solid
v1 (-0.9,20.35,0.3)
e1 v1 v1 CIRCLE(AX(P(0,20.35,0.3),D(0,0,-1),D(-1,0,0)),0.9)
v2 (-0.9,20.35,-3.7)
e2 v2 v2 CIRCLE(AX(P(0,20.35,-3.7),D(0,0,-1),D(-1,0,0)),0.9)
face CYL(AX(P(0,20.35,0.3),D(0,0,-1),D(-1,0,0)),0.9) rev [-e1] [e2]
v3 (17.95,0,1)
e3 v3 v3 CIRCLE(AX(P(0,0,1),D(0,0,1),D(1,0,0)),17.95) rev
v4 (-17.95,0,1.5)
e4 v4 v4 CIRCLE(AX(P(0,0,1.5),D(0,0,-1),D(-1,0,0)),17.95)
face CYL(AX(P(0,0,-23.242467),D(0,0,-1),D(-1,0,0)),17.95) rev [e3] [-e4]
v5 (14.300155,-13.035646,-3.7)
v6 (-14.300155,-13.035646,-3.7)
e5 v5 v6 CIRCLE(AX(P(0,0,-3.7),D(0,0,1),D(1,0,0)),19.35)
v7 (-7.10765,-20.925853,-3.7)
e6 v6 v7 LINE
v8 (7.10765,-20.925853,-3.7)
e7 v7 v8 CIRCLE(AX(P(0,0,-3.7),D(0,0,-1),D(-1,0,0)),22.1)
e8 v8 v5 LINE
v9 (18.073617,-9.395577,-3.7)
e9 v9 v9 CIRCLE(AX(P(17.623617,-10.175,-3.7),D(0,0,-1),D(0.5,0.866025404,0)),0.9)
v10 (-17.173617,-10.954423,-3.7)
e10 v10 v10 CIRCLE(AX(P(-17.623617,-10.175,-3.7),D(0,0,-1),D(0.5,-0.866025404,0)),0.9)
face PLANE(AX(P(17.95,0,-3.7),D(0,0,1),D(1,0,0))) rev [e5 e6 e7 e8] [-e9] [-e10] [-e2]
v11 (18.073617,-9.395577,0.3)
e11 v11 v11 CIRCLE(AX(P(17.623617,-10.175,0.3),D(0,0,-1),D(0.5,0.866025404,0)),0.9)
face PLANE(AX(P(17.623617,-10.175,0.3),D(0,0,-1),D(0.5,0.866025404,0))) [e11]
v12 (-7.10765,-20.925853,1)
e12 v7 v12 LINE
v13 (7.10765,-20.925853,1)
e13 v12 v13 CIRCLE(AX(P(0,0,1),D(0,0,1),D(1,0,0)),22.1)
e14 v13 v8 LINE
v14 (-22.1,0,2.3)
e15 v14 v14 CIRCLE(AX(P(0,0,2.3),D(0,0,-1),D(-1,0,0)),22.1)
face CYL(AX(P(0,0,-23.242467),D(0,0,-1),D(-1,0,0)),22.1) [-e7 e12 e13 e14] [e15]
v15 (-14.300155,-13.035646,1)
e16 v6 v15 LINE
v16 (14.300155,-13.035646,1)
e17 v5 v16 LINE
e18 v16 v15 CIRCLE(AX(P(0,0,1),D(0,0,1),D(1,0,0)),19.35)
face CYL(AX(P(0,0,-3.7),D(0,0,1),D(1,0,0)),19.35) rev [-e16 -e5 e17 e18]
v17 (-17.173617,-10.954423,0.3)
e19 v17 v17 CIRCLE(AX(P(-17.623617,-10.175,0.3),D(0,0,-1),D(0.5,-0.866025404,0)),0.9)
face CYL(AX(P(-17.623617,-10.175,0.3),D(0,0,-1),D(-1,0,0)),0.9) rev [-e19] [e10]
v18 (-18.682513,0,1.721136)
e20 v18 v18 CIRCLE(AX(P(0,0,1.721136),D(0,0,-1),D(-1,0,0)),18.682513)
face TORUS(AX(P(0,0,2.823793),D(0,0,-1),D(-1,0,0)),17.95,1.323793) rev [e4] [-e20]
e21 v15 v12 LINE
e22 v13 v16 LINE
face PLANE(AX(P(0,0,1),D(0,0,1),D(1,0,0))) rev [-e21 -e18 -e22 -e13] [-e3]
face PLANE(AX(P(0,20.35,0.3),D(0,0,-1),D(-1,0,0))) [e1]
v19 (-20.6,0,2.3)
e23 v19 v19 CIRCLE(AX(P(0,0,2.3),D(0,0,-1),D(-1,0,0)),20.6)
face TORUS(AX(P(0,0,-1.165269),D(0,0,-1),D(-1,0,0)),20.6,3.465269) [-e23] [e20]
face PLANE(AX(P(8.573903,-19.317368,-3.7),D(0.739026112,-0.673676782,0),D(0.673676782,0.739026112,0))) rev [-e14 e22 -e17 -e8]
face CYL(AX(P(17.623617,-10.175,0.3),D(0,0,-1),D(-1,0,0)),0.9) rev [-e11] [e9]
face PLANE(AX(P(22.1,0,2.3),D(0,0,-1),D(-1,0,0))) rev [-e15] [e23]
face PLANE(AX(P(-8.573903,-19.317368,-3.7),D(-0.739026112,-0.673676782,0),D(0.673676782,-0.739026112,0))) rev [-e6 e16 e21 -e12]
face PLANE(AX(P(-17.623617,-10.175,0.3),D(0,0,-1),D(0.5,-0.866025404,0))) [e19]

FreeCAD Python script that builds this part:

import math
import FreeCAD as App
import Part
import Sketcher
from FreeCAD import Vector

doc = App.newDocument("Part")
body = doc.addObject("PartDesign::Body", "Body")

# Sketch on XZ plane
sketch1 = body.newObject("Sketcher::SketchObject", "Sketch")
sketch1.AttachmentSupport = (doc.getObject("XZ_Plane"), [""])
sketch1.MapMode = "FlatFace"
sketch1.addGeometry([
    Part.LineSegment(Vector(17.95, -3.7, 0), Vector(17.95, 1.5, 0)),  # 0
    Part.ArcOfCircle(Part.Circle(Vector(17.95, 2.823793, 0), Vector(0, 0, 1), 1.323793), math.radians(-90), math.radians(-56.403256)),  # 1
    Part.ArcOfCircle(Part.Circle(Vector(20.6, -1.165269, 0), Vector(0, 0, 1), 3.465269), math.radians(90), math.radians(123.596744)),  # 2
    Part.LineSegment(Vector(20.6, 2.3, 0), Vector(22.1, 2.3, 0)),  # 3
    Part.LineSegment(Vector(22.1, 2.3, 0), Vector(22.1, -3.7, 0)),  # 4
    Part.LineSegment(Vector(22.1, -3.7, 0), Vector(17.95, -3.7, 0)),  # 5
], False)
sketch1.addConstraint([
    Sketcher.Constraint("Coincident", 0, 2, 1, 1),
    Sketcher.Constraint("Tangent", 1, 2, 2, 2),
    Sketcher.Constraint("Tangent", 2, 1, 3, 1),
    Sketcher.Constraint("Coincident", 3, 2, 4, 1),
    Sketcher.Constraint("Coincident", 4, 2, 5, 1),
    Sketcher.Constraint("Coincident", 5, 2, 0, 1),
    Sketcher.Constraint("Vertical", 0),
    Sketcher.Constraint("Horizontal", 3),
    Sketcher.Constraint("Vertical", 4),
    Sketcher.Constraint("Horizontal", 5),
    Sketcher.Constraint("Vertical", 1, 3, 0, 2),
    Sketcher.Constraint("DistanceY", 4, 2, 4, 1, 6.0),
    Sketcher.Constraint("DistanceX", 3, 1, 3, 2, 1.5),
    Sketcher.Constraint("DistanceY", 0, 1, 0, 2, 5.2),
    Sketcher.Constraint("DistanceX", 5, 2, 5, 1, 4.15),
    Sketcher.Constraint("DistanceX", -1, 1, 2, 3, 20.6),
    Sketcher.Constraint("DistanceY", -1, 1, 0, 2, 1.5),
    Sketcher.Constraint("Radius", 2, 3.465269),
])
revolution = body.newObject("PartDesign::Revolution", "Revolution")
revolution.Profile = sketch1
revolution.ReferenceAxis = (sketch1, ["V_Axis"])
revolution.Angle = 360

# Sketch on XY plane
sketch2 = body.newObject("Sketcher::SketchObject", "Sketch001")
sketch2.AttachmentSupport = (doc.getObject("XY_Plane"), [""])
sketch2.MapMode = "FlatFace"
sketch2.addGeometry([
    Part.LineSegment(Vector(-14.300155, -13.035646, 0), Vector(-8.573903, -19.317368, 0)),  # 0
    Part.LineSegment(Vector(-8.573903, -19.317368, 0), Vector(-4.755467, -23.506207, 0)),  # 1
    Part.LineSegment(Vector(-4.755467, -23.506207, 0), Vector(4.755467, -23.506207, 0)),  # 2
    Part.LineSegment(Vector(4.755467, -23.506207, 0), Vector(8.573903, -19.317368, 0)),  # 3
    Part.LineSegment(Vector(8.573903, -19.317368, 0), Vector(14.300155, -13.035646, 0)),  # 4
    Part.ArcOfCircle(Part.Circle(Vector(0, 0, 0), Vector(0, 0, 1), 19.35), math.radians(-42.351479), math.radians(222.351479)),  # 5
], False)
sketch2.addConstraint([
    Sketcher.Constraint("Coincident", 0, 2, 1, 1),
    Sketcher.Constraint("Coincident", 1, 2, 2, 1),
    Sketcher.Constraint("Coincident", 2, 2, 3, 1),
    Sketcher.Constraint("Coincident", 3, 2, 4, 1),
    Sketcher.Constraint("Tangent", 4, 2, 5, 1),
    Sketcher.Constraint("Tangent", 5, 2, 0, 1),
    Sketcher.Constraint("Horizontal", 2),
    Sketcher.Constraint("Coincident", 5, 3, -1, 1),
    Sketcher.Constraint("Symmetric", 0, 2, 3, 2, -2),
    Sketcher.Constraint("Parallel", 0, 1),
    Sketcher.Constraint("Parallel", 3, 4),
    Sketcher.Constraint("Radius", 5, 19.35),
    Sketcher.Constraint("Distance", 0, 8.5),
    Sketcher.Constraint("DistanceX", 2, 1, 2, 2, 9.510934),
    Sketcher.Constraint("DistanceY", 1, 2, 0, 2, 4.188839),
])
pocket1 = body.newObject("PartDesign::Pocket", "Pocket")
pocket1.Profile = sketch2
pocket1.Type = "TwoLengths"
pocket1.Length = 1
pocket1.Length2 = 32.472369
pocket1.Reversed = True

# Sketch on XY plane
sketch3 = body.newObject("Sketcher::SketchObject", "Sketch002")
sketch3.AttachmentSupport = (doc.getObject("XY_Plane"), [""])
sketch3.MapMode = "FlatFace"
sketch3.AttachmentOffset = App.Placement(Vector(0, 0, -3.7), App.Rotation())
sketch3.addGeometry(Part.Circle(Vector(0, 20.35, 0), Vector(0, 0, 1), 0.9), False)
sketch3.addConstraint([
    Sketcher.Constraint("PointOnObject", 0, 3, -2),
    Sketcher.Constraint("Diameter", 0, 1.8),
    Sketcher.Constraint("DistanceY", -1, 1, 0, 3, 20.35),
])
pocket2 = body.newObject("PartDesign::Pocket", "Pocket001")
pocket2.Profile = sketch3
pocket2.Length = 4
pocket2.Reversed = True
doc.recompute()

polarpattern = body.newObject("PartDesign::PolarPattern", "PolarPattern")
polarpattern.Originals = [pocket2]
polarpattern.Axis = (doc.getObject("Z_Axis"), [""])
polarpattern.Angle = 360
polarpattern.Occurrences = 3
body.Tip = polarpattern

doc.recompute()
